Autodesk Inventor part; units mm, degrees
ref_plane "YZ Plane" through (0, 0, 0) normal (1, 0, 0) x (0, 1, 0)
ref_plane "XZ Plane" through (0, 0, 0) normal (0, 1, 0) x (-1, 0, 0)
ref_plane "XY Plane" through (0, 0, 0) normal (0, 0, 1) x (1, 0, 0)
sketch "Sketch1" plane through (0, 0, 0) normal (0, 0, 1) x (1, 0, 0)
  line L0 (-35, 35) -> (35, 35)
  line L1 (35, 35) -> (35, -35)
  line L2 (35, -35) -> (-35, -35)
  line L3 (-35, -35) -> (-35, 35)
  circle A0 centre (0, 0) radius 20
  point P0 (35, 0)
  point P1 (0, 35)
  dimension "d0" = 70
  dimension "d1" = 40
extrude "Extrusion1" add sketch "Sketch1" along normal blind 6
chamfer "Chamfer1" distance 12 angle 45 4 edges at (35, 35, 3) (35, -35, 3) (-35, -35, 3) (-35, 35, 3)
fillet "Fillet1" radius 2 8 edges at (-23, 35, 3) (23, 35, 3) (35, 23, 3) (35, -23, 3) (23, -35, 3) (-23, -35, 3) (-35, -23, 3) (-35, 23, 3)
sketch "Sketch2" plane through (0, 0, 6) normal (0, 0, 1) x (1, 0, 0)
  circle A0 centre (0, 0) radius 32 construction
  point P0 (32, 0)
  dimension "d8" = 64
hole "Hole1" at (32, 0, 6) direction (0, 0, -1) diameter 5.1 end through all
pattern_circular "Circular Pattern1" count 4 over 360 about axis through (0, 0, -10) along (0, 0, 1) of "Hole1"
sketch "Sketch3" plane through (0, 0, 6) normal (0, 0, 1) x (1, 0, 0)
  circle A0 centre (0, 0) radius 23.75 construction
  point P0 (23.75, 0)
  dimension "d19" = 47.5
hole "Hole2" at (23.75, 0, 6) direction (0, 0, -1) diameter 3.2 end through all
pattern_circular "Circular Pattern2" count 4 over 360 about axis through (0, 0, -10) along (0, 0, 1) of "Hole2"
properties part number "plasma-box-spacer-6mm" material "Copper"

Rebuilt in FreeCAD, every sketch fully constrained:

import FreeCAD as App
import Part
import Sketcher

V = App.Vector


def edges_at(feature, points):
    """Names of the edges that pass closest to the given points."""
    edges = feature.Shape.Edges
    near = lambda p: min(range(len(edges)), key=lambda i: edges[i].distToShape(Part.Vertex(*p))[0])
    return sorted({f"Edge{near(p) + 1}" for p in points})


def add_polygon(sketch, points):
    """Adds a closed chain of lines whose ends are joined by coincident constraints."""
    first, n = sketch.GeometryCount, len(points)
    for a, b in zip(points, points[1:] + points[:1]):
        sketch.addGeometry(Part.LineSegment(App.Vector(*a, 0), App.Vector(*b, 0)), False)
    for i in range(n):
        sketch.addConstraint(Sketcher.Constraint("Coincident", first + i, 2, first + (i + 1) % n, 1))

doc = App.newDocument("Part")
body = doc.addObject("PartDesign::Body", "Body")

# Sketch on XY plane
sketch1 = doc.addObject("Sketcher::SketchObject", "Sketch")
body.addObject(sketch1)
sketch1.AttachmentSupport = (doc.XY_Plane, [""])
sketch1.MapMode = "FlatFace"
add_polygon(sketch1, [(35, 35), (-35, 35), (-35, -35), (35, -35)])  # lines 0-3
sketch1.addGeometry(Part.Circle(V(0, 0, 0), V(0, 0, 1), 20), False)  # 4
sketch1.addConstraint(Sketcher.Constraint("Horizontal", 0))
sketch1.addConstraint(Sketcher.Constraint("Vertical", 1))
sketch1.addConstraint(Sketcher.Constraint("Horizontal", 2))
sketch1.addConstraint(Sketcher.Constraint("Vertical", 3))
sketch1.addConstraint(Sketcher.Constraint("Coincident", 4, 3, -1, 1))
sketch1.addConstraint(Sketcher.Constraint("Symmetric", 0, 2, 2, 2, -1, 1))
sketch1.addConstraint(Sketcher.Constraint("Equal", 2, 1))
sketch1.addConstraint(Sketcher.Constraint("Diameter", 4, 40.0))
sketch1.addConstraint(Sketcher.Constraint("DistanceX", 0, 2, 0, 1, 70.0))
pad1 = doc.addObject("PartDesign::Pad", "Pad")
body.addObject(pad1)
pad1.Profile = sketch1
pad1.Length = 6
doc.recompute()

chamfer = doc.addObject("PartDesign::Chamfer", "Chamfer")
body.addObject(chamfer)
chamfer.Base = (pad1, edges_at(pad1, [
    (35, 35, 3),
    (35, -35, 3),
    (-35, -35, 3),
    (-35, 35, 3),
]))
chamfer.Size = 12
doc.recompute()

fillet = doc.addObject("PartDesign::Fillet", "Fillet")
body.addObject(fillet)
fillet.Base = (chamfer, edges_at(chamfer, [
    (-23, 35, 3),
    (23, 35, 3),
    (35, 23, 3),
    (35, -23, 3),
    (23, -35, 3),
    (-23, -35, 3),
    (-35, -23, 3),
    (-35, 23, 3),
]))
fillet.Radius = 2

# Sketch on XY plane
sketch2 = doc.addObject("Sketcher::SketchObject", "Sketch001")
body.addObject(sketch2)
sketch2.AttachmentSupport = (doc.XY_Plane, [""])
sketch2.MapMode = "FlatFace"
sketch2.AttachmentOffset = App.Placement(V(0, 0, 6), App.Rotation())
sketch2.addGeometry(Part.Circle(V(32, 0, 0), V(0, 0, 1), 2.5), False)
sketch2.addConstraint(Sketcher.Constraint("PointOnObject", 0, 3, -1))
sketch2.addConstraint(Sketcher.Constraint("Diameter", 0, 5.1))
sketch2.addConstraint(Sketcher.Constraint("DistanceX", -1, 1, 0, 3, 32.0))
doc.recompute()
hole = doc.addObject("PartDesign::Hole", "Hole")
body.addObject(hole)
hole.Profile = sketch2
hole.ThreadType = "None"
hole.Diameter = 5.1
hole.DepthType = "ThroughAll"
doc.recompute()

polarpattern = doc.addObject("PartDesign::PolarPattern", "PolarPattern")
body.addObject(polarpattern)
polarpattern.Originals = [hole]
polarpattern.Axis = (doc.Z_Axis, [""])
polarpattern.Angle = 360
polarpattern.Occurrences = 4
body.Tip = polarpattern

# Sketch on XY plane
sketch3 = doc.addObject("Sketcher::SketchObject", "Sketch002")
body.addObject(sketch3)
sketch3.AttachmentSupport = (doc.XY_Plane, [""])
sketch3.MapMode = "FlatFace"
sketch3.AttachmentOffset = App.Placement(V(0, 0, 6), App.Rotation())
sketch3.addGeometry(Part.Circle(V(23.8, 0, 0), V(0, 0, 1), 1.6), False)
sketch3.addConstraint(Sketcher.Constraint("PointOnObject", 0, 3, -1))
sketch3.addConstraint(Sketcher.Constraint("Diameter", 0, 3.2))
sketch3.addConstraint(Sketcher.Constraint("DistanceX", -1, 1, 0, 3, 23.75))
doc.recompute()
hole2 = doc.addObject("PartDesign::Hole", "Hole001")
body.addObject(hole2)
hole2.Profile = sketch3
hole2.ThreadType = "None"
hole2.Diameter = 3.2
hole2.DepthType = "ThroughAll"
doc.recompute()

polarpattern2 = doc.addObject("PartDesign::PolarPattern", "PolarPattern001")
body.addObject(polarpattern2)
polarpattern2.Originals = [hole2]
polarpattern2.Axis = (doc.Z_Axis, [""])
polarpattern2.Angle = 360
polarpattern2.Occurrences = 4
body.Tip = polarpattern2

doc.recompute()
